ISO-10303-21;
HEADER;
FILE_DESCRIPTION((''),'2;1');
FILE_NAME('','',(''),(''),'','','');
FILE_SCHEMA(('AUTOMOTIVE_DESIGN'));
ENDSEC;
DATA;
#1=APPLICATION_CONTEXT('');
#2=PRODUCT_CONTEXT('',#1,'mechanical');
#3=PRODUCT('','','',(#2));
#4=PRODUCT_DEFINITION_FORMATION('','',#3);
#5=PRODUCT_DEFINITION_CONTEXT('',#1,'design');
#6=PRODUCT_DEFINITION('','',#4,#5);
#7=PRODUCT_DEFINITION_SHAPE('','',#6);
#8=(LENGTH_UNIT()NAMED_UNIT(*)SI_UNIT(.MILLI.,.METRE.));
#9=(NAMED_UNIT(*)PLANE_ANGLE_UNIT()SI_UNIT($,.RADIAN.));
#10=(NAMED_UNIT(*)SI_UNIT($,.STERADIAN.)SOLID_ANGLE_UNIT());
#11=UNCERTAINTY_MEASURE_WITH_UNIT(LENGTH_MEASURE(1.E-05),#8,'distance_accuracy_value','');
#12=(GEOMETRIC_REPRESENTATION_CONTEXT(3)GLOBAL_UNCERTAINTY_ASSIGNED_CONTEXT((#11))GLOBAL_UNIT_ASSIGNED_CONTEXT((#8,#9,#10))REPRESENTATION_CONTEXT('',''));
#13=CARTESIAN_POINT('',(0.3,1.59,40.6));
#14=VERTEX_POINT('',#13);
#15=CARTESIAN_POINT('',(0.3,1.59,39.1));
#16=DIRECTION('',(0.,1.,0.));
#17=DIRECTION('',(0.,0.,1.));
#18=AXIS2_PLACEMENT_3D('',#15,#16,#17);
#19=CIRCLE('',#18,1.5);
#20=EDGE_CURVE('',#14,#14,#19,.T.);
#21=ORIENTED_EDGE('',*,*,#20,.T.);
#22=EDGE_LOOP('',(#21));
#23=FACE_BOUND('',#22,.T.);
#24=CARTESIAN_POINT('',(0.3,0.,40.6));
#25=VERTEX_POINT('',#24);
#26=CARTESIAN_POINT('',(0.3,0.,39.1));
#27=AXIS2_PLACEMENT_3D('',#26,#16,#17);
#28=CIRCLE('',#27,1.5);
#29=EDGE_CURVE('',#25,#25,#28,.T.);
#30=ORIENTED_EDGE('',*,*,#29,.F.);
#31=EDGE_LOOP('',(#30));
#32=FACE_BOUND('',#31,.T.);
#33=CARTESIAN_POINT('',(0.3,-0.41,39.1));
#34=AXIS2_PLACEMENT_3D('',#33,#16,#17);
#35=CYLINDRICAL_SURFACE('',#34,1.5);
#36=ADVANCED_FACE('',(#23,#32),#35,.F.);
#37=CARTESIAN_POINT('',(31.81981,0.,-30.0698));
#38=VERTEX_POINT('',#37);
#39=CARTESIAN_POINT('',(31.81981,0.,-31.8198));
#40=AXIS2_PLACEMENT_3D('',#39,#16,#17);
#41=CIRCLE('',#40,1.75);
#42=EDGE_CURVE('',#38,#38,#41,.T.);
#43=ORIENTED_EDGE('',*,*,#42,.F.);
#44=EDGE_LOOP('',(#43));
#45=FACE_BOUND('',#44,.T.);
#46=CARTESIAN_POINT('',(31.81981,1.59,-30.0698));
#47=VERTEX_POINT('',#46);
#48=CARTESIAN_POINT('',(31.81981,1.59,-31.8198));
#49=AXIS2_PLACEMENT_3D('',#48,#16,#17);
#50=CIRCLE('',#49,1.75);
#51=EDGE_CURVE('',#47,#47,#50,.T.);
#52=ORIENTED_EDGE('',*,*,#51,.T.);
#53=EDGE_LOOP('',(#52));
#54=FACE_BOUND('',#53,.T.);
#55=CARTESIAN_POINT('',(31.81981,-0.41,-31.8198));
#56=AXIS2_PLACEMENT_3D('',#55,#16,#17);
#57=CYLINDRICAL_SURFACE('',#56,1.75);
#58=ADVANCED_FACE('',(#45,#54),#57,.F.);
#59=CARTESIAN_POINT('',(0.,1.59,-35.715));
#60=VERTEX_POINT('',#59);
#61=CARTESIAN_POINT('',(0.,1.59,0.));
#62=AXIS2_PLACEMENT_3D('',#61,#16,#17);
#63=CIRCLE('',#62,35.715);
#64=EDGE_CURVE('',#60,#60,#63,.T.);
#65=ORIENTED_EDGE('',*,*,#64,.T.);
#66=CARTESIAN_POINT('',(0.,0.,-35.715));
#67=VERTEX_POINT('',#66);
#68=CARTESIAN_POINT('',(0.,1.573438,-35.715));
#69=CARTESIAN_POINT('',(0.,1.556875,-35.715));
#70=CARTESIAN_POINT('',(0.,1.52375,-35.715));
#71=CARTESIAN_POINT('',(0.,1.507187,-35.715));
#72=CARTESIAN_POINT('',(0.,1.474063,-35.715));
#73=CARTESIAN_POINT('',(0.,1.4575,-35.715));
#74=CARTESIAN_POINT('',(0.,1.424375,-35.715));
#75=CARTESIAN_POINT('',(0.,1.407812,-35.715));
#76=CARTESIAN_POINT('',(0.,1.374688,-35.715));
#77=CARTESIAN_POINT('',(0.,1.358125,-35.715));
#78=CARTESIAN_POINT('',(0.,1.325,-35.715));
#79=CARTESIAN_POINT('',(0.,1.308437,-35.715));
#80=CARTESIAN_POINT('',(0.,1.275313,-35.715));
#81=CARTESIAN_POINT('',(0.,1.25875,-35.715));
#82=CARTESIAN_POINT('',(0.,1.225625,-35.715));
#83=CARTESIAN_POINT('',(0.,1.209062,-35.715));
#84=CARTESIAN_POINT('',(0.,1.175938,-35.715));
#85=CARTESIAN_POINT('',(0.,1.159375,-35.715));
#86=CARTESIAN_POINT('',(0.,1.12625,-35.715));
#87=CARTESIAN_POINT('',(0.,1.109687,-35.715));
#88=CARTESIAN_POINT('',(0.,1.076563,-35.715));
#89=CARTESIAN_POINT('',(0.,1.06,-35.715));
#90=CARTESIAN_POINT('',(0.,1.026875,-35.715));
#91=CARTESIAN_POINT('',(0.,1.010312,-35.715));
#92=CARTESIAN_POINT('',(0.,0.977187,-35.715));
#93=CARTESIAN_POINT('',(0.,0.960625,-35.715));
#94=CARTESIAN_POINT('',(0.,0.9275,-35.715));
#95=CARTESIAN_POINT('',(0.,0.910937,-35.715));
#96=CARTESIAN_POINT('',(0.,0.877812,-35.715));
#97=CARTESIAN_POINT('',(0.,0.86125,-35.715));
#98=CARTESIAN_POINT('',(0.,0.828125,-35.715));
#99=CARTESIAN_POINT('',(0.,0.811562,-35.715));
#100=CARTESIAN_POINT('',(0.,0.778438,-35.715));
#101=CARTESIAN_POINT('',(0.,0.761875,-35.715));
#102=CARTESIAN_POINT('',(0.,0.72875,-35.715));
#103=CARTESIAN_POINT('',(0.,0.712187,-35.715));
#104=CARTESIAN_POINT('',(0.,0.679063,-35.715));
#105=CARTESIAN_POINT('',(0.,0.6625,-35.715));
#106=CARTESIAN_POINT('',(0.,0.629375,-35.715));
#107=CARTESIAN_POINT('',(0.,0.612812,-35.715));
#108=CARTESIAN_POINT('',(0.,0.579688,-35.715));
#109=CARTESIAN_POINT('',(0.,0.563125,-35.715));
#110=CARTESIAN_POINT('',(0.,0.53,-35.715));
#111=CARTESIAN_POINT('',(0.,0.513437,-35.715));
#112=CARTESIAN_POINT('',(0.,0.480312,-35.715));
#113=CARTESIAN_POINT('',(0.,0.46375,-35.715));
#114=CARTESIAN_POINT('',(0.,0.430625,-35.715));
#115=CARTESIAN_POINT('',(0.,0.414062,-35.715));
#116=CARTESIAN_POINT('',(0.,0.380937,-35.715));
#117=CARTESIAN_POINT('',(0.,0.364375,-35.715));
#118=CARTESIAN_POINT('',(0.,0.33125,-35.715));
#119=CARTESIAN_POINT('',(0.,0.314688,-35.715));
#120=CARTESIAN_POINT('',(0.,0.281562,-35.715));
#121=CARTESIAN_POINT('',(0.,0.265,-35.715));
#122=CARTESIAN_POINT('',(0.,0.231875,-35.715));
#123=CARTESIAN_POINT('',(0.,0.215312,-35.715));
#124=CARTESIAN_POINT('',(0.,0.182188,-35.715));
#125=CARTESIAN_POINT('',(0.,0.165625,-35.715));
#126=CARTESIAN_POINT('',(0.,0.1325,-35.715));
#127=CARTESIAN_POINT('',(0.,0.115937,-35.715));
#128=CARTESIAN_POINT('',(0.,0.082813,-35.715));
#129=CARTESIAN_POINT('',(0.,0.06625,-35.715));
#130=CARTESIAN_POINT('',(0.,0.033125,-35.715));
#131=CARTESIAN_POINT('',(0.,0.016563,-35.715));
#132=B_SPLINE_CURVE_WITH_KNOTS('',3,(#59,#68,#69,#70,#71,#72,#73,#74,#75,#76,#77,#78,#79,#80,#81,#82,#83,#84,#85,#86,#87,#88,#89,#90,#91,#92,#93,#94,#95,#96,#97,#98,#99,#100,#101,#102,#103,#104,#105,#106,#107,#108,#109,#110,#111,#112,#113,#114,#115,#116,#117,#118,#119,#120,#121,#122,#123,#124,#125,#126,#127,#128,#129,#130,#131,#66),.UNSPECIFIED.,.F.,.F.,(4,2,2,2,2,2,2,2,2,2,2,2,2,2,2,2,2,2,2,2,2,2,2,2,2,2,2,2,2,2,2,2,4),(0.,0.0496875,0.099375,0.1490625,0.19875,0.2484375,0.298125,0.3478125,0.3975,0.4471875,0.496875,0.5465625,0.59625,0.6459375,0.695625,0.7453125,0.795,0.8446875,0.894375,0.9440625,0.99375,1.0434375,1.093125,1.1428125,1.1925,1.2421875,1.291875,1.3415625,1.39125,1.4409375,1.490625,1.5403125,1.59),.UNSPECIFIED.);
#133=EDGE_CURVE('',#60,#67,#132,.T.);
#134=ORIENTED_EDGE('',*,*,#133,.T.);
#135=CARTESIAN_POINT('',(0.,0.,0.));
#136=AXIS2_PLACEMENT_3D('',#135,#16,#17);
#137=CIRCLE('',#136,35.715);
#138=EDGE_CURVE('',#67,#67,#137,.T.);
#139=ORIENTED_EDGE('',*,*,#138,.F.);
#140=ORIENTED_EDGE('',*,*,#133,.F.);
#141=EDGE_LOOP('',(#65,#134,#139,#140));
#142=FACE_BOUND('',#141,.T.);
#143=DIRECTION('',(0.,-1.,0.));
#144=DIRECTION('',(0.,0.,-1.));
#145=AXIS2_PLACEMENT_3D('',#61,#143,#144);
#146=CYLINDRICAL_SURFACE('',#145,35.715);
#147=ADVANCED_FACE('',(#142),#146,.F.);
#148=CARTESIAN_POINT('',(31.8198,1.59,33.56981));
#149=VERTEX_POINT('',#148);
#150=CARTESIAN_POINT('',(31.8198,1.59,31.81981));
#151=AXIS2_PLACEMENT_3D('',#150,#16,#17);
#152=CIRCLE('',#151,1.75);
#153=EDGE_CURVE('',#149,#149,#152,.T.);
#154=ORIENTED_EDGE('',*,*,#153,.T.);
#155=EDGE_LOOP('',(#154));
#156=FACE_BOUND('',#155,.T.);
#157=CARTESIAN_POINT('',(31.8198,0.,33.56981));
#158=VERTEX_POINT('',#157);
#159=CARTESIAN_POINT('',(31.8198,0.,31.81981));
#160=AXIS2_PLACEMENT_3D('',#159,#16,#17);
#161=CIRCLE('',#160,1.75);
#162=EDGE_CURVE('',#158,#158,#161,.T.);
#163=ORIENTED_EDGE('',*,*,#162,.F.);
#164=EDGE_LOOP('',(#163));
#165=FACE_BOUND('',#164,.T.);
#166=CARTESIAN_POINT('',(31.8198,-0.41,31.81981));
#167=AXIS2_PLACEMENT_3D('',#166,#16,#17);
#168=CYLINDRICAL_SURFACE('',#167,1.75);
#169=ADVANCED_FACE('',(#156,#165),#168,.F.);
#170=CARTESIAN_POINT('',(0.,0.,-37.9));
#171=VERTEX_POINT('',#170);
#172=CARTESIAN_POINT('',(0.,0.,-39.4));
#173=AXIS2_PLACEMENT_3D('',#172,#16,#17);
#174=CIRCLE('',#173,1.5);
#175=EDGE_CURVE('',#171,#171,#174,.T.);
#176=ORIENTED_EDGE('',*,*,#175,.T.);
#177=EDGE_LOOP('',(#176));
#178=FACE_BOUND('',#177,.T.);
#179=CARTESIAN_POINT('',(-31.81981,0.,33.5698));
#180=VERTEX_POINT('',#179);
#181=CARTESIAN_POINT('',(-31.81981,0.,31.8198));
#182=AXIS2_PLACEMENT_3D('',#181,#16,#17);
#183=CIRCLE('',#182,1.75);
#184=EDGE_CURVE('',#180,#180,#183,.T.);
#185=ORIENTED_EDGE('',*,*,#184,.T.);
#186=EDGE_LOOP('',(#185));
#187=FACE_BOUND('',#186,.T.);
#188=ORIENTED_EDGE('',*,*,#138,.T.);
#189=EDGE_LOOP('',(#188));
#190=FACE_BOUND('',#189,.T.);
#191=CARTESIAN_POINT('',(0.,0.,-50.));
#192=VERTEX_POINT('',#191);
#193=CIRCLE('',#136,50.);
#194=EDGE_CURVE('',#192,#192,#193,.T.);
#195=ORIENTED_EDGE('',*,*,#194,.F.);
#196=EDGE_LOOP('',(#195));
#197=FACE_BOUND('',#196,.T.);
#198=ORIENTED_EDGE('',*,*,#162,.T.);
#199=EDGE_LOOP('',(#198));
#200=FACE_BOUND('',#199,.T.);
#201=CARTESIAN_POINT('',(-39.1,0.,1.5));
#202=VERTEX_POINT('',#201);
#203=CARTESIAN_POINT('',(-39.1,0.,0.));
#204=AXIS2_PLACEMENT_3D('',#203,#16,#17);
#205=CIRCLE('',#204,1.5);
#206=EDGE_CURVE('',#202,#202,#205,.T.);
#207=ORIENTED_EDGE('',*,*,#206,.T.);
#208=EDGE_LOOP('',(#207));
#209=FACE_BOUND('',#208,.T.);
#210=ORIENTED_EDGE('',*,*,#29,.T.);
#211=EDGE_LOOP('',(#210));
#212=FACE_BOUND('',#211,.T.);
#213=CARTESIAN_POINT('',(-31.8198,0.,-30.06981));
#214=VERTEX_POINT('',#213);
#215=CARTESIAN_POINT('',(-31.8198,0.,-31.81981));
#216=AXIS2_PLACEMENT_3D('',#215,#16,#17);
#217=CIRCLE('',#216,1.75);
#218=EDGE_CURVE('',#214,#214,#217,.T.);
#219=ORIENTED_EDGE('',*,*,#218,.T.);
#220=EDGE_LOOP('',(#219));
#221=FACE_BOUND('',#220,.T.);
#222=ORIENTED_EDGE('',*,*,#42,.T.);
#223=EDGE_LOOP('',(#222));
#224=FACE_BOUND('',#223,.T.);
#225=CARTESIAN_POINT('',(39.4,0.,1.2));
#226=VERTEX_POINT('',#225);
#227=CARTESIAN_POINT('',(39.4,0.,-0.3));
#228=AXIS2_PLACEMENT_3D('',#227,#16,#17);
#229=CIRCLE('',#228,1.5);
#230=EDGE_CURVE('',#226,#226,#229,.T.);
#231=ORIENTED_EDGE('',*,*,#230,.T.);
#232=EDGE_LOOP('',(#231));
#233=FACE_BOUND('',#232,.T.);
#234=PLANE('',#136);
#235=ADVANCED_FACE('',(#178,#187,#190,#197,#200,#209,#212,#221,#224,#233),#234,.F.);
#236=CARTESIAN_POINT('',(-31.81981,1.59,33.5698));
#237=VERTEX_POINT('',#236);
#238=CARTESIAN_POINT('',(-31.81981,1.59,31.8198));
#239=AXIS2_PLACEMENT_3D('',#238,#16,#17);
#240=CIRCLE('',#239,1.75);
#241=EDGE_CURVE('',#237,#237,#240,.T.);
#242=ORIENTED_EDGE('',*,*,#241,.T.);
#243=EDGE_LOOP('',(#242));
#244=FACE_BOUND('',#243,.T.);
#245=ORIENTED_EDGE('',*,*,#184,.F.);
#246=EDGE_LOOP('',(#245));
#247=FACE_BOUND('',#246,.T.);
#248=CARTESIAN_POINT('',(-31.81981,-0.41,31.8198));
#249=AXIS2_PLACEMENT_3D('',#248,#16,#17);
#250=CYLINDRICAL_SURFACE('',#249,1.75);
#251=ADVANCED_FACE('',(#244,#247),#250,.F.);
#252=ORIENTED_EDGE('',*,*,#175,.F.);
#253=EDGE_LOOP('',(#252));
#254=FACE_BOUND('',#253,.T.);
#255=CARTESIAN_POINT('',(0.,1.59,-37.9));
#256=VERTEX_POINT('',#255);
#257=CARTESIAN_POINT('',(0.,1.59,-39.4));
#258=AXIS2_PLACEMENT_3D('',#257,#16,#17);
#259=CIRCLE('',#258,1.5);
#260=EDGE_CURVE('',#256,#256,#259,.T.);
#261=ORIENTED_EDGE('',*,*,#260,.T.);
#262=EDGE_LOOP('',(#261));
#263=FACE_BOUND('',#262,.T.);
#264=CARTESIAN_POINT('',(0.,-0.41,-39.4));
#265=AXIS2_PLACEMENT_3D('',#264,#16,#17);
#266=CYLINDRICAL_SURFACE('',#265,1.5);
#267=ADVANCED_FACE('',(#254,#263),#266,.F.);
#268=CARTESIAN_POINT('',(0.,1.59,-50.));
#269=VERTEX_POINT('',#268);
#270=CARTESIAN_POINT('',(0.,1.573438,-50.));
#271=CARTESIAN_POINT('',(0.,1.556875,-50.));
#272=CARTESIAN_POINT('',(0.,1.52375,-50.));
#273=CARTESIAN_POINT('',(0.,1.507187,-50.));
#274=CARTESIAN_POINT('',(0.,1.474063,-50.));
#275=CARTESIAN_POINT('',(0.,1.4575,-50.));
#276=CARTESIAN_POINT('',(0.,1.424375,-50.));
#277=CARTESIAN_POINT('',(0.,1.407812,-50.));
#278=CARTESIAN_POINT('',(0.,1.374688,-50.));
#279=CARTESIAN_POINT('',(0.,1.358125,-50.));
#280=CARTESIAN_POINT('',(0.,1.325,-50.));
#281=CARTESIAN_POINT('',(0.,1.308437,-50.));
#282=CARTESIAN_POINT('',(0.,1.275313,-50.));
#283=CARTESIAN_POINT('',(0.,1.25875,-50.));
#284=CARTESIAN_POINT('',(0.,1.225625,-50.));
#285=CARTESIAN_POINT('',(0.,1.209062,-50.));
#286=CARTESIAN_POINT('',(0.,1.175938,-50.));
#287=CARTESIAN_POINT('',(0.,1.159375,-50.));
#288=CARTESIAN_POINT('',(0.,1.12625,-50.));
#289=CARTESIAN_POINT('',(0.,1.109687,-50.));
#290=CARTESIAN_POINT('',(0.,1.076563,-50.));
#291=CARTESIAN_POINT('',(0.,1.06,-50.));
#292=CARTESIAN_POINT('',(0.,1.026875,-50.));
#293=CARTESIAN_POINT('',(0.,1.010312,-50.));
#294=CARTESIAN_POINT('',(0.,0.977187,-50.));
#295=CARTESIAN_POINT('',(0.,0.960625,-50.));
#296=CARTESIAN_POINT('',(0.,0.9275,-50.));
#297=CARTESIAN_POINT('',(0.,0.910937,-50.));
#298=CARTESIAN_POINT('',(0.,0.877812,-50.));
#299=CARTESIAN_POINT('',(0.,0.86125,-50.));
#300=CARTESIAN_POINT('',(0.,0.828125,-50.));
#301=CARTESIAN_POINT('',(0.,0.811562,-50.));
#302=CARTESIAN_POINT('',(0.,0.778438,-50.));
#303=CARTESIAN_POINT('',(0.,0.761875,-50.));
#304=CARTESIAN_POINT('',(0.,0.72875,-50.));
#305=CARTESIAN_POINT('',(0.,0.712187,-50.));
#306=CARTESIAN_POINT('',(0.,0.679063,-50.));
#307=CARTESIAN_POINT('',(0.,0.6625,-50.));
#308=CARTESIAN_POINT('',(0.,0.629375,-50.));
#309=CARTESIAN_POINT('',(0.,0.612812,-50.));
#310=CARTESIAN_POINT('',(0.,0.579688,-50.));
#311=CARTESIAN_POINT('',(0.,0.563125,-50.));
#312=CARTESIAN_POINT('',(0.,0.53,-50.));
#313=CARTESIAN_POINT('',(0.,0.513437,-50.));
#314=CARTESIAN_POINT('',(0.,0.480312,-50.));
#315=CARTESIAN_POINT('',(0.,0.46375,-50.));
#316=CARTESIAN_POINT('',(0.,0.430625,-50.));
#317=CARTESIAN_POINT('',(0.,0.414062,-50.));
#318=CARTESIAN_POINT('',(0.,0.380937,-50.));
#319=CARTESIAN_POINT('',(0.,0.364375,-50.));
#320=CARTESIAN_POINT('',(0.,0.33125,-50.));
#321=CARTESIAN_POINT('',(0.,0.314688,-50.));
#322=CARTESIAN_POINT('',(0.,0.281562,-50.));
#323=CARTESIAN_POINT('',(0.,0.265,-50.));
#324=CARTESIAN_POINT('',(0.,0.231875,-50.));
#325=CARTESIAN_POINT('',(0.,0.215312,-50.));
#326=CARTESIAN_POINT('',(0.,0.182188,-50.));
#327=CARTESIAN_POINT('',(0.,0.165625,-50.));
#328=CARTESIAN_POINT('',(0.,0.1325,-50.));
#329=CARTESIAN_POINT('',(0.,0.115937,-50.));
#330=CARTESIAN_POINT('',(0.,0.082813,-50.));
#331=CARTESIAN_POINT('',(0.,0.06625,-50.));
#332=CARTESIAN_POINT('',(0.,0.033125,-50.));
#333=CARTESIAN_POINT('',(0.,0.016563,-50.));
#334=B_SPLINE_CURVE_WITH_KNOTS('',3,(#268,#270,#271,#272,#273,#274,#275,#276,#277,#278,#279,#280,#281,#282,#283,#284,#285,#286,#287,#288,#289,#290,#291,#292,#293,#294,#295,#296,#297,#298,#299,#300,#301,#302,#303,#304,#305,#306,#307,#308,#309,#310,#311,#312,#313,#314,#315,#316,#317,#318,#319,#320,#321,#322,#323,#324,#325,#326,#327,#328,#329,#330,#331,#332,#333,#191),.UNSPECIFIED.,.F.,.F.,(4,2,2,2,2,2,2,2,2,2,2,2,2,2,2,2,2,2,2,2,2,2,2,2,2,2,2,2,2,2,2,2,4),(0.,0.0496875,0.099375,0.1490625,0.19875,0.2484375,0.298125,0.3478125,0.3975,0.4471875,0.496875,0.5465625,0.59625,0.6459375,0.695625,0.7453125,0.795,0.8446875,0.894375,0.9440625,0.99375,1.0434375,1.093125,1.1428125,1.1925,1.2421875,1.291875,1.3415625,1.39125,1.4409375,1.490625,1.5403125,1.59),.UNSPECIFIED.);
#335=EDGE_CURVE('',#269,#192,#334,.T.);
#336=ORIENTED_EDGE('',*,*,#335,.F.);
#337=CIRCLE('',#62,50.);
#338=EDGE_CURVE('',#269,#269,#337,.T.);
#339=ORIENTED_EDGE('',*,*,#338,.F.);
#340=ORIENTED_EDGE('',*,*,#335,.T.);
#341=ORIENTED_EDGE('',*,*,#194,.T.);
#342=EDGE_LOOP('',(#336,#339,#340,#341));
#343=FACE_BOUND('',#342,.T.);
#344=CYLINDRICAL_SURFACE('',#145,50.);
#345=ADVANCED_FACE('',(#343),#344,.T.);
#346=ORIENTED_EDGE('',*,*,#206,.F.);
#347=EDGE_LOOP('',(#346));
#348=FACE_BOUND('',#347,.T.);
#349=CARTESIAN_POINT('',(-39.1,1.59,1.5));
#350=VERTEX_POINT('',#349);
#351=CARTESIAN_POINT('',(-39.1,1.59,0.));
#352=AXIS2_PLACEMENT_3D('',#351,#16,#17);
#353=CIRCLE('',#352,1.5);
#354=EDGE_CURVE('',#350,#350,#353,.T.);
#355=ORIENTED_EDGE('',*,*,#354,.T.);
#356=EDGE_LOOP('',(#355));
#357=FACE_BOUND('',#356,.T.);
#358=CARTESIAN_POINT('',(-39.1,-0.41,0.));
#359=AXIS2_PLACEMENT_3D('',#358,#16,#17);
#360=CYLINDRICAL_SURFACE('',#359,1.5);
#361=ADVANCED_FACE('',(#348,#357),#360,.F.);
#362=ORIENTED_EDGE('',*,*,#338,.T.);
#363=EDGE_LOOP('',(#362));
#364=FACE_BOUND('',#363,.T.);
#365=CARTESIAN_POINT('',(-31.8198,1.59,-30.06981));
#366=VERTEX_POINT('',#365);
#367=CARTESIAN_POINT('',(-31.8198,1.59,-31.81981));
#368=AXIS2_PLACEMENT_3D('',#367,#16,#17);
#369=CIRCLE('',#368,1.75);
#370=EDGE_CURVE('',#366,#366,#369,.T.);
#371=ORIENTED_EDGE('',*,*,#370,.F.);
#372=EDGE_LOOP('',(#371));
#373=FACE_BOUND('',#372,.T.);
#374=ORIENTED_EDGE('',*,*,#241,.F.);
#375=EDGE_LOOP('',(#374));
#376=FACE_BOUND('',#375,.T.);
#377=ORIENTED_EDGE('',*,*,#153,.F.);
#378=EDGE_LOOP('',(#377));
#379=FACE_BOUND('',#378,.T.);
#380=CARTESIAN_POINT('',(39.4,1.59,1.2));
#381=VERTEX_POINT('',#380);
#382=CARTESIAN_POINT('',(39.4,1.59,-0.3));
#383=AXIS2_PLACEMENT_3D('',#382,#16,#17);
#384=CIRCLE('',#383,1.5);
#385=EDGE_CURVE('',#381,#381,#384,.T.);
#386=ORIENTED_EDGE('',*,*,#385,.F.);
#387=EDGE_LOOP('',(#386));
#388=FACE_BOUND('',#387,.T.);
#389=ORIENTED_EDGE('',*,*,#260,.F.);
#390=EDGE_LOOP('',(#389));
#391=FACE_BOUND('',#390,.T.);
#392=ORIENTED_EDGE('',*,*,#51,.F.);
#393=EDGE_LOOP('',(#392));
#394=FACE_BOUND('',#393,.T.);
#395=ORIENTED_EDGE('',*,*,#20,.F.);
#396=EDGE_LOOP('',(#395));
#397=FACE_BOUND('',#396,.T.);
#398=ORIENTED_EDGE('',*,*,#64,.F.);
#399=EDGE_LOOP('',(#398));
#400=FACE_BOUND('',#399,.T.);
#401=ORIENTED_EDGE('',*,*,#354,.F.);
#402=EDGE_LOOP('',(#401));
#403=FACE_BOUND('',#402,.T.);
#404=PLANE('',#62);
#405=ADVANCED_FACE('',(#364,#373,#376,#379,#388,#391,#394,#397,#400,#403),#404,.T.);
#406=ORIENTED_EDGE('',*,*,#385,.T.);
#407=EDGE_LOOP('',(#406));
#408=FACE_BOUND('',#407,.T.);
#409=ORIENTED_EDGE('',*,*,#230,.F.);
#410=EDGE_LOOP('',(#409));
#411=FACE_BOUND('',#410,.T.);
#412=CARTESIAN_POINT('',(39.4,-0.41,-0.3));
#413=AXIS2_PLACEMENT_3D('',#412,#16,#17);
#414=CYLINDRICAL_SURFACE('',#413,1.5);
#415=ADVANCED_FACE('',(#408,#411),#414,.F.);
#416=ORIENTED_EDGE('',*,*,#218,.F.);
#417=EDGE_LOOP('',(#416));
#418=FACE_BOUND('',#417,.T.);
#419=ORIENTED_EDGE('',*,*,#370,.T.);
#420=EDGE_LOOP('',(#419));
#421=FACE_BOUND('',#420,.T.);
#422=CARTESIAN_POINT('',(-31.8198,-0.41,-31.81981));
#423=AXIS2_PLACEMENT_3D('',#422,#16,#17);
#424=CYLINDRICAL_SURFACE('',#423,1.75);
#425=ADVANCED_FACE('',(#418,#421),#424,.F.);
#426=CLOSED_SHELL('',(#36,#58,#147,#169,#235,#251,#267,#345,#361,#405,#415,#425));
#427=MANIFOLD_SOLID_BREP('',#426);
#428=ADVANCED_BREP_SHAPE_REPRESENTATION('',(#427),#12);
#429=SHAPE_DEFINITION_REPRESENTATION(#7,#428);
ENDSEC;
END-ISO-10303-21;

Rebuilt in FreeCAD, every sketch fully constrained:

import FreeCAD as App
import Part
import Sketcher
Q = App.Units.Quantity

doc = App.newDocument("Part")
body = doc.addObject("PartDesign::Body", "Body")

sketch1 = body.newObject("Sketcher::SketchObject", "Sketch")
sketch1.AttachmentSupport = (doc.getObject("XZ_Plane"), [""])
sketch1.MapMode = "FlatFace"
sketch1.addGeometry([
    Part.Circle(App.Vector(0, 0, 0), App.Vector(0, 0, 1), 50),
    Part.Circle(App.Vector(0, 0, 0), App.Vector(0, 0, 1), 35.715),
], False)
sketch1.addConstraint([
    Sketcher.Constraint("Coincident", 0, 3, -1, 1),
    Sketcher.Constraint("Coincident", 1, 3, -1, 1),
    Sketcher.Constraint("Diameter", 0, Q("100 mm")),
    Sketcher.Constraint("Diameter", 1, Q("71.43 mm")),
])
pad1 = body.newObject("PartDesign::Pad", "Pad")
pad1.Profile = sketch1
pad1.Length = 1.59
pad1.Reversed = True

sketch2 = body.newObject("Sketcher::SketchObject", "Sketch001")
sketch2.AttachmentSupport = (doc.getObject("XZ_Plane"), [""])
sketch2.MapMode = "FlatFace"
sketch2.AttachmentOffset = App.Placement(App.Vector(0, 0, -1.59), App.Rotation())
sketch2.addGeometry([
    Part.Circle(App.Vector(0, -39.4, 0), App.Vector(0, 0, 1), 1.5),
    Part.Circle(App.Vector(39.4, -0.3, 0), App.Vector(0, 0, 1), 1.5),
    Part.Circle(App.Vector(0.3, 39.1, 0), App.Vector(0, 0, 1), 1.5),
    Part.Circle(App.Vector(-39.1, 0, 0), App.Vector(0, 0, 1), 1.5),
], False)
sketch2.addConstraint([
    Sketcher.Constraint("Equal", 0, 1),
    Sketcher.Constraint("Equal", 1, 2),
    Sketcher.Constraint("Equal", 2, 3),
    Sketcher.Constraint("PointOnObject", 0, 3, -2),
    Sketcher.Constraint("PointOnObject", 3, 3, -1),
    Sketcher.Constraint("Diameter", 0, Q("3 mm")),
    Sketcher.Constraint("DistanceY", 0, 3, -1, 1, Q("39.4 mm")),
    Sketcher.Constraint("DistanceX", -1, 1, 1, 3, Q("39.4 mm")),
    Sketcher.Constraint("DistanceY", 1, 3, -1, 1, Q("0.3 mm")),
    Sketcher.Constraint("DistanceX", -1, 1, 2, 3, Q("0.3 mm")),
    Sketcher.Constraint("DistanceY", -1, 1, 2, 3, Q("39.1 mm")),
    Sketcher.Constraint("DistanceX", 3, 3, -1, 1, Q("39.1 mm")),
])
pocket1 = body.newObject("PartDesign::Pocket", "Pocket")
pocket1.Profile = sketch2
pocket1.Length = 2
pocket1.Reversed = True

sketch3 = body.newObject("Sketcher::SketchObject", "Sketch002")
sketch3.AttachmentSupport = (doc.getObject("XZ_Plane"), [""])
sketch3.MapMode = "FlatFace"
sketch3.AttachmentOffset = App.Placement(App.Vector(0, 0, -1.59), App.Rotation())
sketch3.addGeometry([
    Part.Circle(App.Vector(-31.8198, -31.81981, 0), App.Vector(0, 0, 1), 1.75),
    Part.Circle(App.Vector(31.81981, -31.8198, 0), App.Vector(0, 0, 1), 1.75),
    Part.Circle(App.Vector(31.8198, 31.81981, 0), App.Vector(0, 0, 1), 1.75),
    Part.Circle(App.Vector(-31.81981, 31.8198, 0), App.Vector(0, 0, 1), 1.75),
], False)
sketch3.addConstraint([
    Sketcher.Constraint("Equal", 0, 1),
    Sketcher.Constraint("Equal", 1, 2),
    Sketcher.Constraint("Equal", 2, 3),
    Sketcher.Constraint("Symmetric", 0, 3, 2, 3, -1, 1),
    Sketcher.Constraint("Symmetric", 1, 3, 3, 3, -1, 1),
    Sketcher.Constraint("Diameter", 0, Q("3.5 mm")),
    Sketcher.Constraint("DistanceX", 0, 3, -1, 1, Q("31.8198 mm")),
    Sketcher.Constraint("DistanceY", 1, 3, -1, 1, Q("31.8198 mm")),
    Sketcher.Constraint("DistanceY", 0, 3, -1, 1, Q("31.81981 mm")),
    Sketcher.Constraint("DistanceX", -1, 1, 1, 3, Q("31.81981 mm")),
])
pocket2 = body.newObject("PartDesign::Pocket", "Pocket001")
pocket2.Profile = sketch3
pocket2.Length = 2
pocket2.Reversed = True

doc.recompute()
